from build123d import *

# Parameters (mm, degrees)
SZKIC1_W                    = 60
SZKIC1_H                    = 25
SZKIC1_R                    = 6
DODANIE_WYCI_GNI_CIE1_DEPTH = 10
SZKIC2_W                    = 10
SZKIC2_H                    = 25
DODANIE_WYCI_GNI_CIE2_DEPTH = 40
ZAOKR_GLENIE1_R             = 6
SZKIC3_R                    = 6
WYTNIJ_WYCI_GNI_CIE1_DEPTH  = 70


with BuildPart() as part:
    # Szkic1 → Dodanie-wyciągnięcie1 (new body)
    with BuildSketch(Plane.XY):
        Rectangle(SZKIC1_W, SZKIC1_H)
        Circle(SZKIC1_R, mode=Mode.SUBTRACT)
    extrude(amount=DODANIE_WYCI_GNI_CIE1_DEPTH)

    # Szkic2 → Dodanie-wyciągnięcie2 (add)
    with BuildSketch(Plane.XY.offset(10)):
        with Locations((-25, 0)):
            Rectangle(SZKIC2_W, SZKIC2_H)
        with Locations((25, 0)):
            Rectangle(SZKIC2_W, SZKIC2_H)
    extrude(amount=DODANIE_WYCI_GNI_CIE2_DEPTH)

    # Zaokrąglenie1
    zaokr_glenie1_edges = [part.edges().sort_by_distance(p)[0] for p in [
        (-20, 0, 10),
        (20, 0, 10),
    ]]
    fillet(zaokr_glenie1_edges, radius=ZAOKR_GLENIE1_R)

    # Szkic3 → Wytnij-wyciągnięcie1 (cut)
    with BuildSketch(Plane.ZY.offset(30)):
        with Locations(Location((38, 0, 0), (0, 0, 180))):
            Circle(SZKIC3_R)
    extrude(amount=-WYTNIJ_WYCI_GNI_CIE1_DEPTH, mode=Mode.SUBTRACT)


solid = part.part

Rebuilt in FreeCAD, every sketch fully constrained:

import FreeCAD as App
import Part
import Sketcher


def edges_at(feature, points):
    """Names of the edges that pass closest to the given points."""
    edges = feature.Shape.Edges
    near = lambda p: min(range(len(edges)), key=lambda i: edges[i].distToShape(Part.Vertex(*p))[0])
    return sorted({f"Edge{near(p) + 1}" for p in points})

doc = App.newDocument("Part")
body = doc.addObject("PartDesign::Body", "Body")

# Sketch on XY plane
sketch1 = doc.addObject("Sketcher::SketchObject", "Sketch")
body.addObject(sketch1)
sketch1.AttachmentSupport = (doc.XY_Plane, [""])
sketch1.MapMode = "FlatFace"
sketch1.addGeometry([
    Part.LineSegment(App.Vector(-30, 12.5, 0), App.Vector(-30, -12.5, 0)),  # 0
    Part.LineSegment(App.Vector(-30, -12.5, 0), App.Vector(30, -12.5, 0)),  # 1
    Part.LineSegment(App.Vector(30, -12.5, 0), App.Vector(30, 12.5, 0)),  # 2
    Part.LineSegment(App.Vector(30, 12.5, 0), App.Vector(-30, 12.5, 0)),  # 3
    Part.Circle(App.Vector(0, 0, 0), App.Vector(0, 0, 1), 6),  # 4
], False)
sketch1.addConstraint([
    Sketcher.Constraint("Coincident", 0, 2, 1, 1),
    Sketcher.Constraint("Coincident", 1, 2, 2, 1),
    Sketcher.Constraint("Coincident", 2, 2, 3, 1),
    Sketcher.Constraint("Coincident", 3, 2, 0, 1),
    Sketcher.Constraint("Vertical", 0),
    Sketcher.Constraint("Horizontal", 1),
    Sketcher.Constraint("Vertical", 2),
    Sketcher.Constraint("Horizontal", 3),
    Sketcher.Constraint("Coincident", 4, 3, -1, 1),
    Sketcher.Constraint("Symmetric", 0, 2, 2, 2, -1, 1),
    Sketcher.Constraint("Diameter", 4, 12.0),
    Sketcher.Constraint("DistanceX", 1, 1, 1, 2, 60.0),
    Sketcher.Constraint("DistanceY", 0, 2, 0, 1, 25.0),
])
pad1 = doc.addObject("PartDesign::Pad", "Pad")
body.addObject(pad1)
pad1.Profile = sketch1
pad1.Length = 10

# Sketch on XY plane
sketch2 = doc.addObject("Sketcher::SketchObject", "Sketch001")
body.addObject(sketch2)
sketch2.AttachmentSupport = (doc.XY_Plane, [""])
sketch2.MapMode = "FlatFace"
sketch2.AttachmentOffset = App.Placement(App.Vector(0, 0, 10), App.Rotation())
sketch2.addGeometry([
    Part.LineSegment(App.Vector(-30, 12.5, 0), App.Vector(-30, -12.5, 0)),  # 0
    Part.LineSegment(App.Vector(-30, -12.5, 0), App.Vector(-20, -12.5, 0)),  # 1
    Part.LineSegment(App.Vector(-20, -12.5, 0), App.Vector(-20, 12.5, 0)),  # 2
    Part.LineSegment(App.Vector(-20, 12.5, 0), App.Vector(-30, 12.5, 0)),  # 3
    Part.LineSegment(App.Vector(20, 12.5, 0), App.Vector(20, -12.5, 0)),  # 4
    Part.LineSegment(App.Vector(20, -12.5, 0), App.Vector(30, -12.5, 0)),  # 5
    Part.LineSegment(App.Vector(30, -12.5, 0), App.Vector(30, 12.5, 0)),  # 6
    Part.LineSegment(App.Vector(30, 12.5, 0), App.Vector(20, 12.5, 0)),  # 7
], False)
sketch2.addConstraint([
    Sketcher.Constraint("Coincident", 0, 2, 1, 1),
    Sketcher.Constraint("Coincident", 1, 2, 2, 1),
    Sketcher.Constraint("Coincident", 2, 2, 3, 1),
    Sketcher.Constraint("Coincident", 3, 2, 0, 1),
    Sketcher.Constraint("Coincident", 4, 2, 5, 1),
    Sketcher.Constraint("Coincident", 5, 2, 6, 1),
    Sketcher.Constraint("Coincident", 6, 2, 7, 1),
    Sketcher.Constraint("Coincident", 7, 2, 4, 1),
    Sketcher.Constraint("Vertical", 0),
    Sketcher.Constraint("Horizontal", 1),
    Sketcher.Constraint("Vertical", 2),
    Sketcher.Constraint("Horizontal", 3),
    Sketcher.Constraint("Vertical", 4),
    Sketcher.Constraint("Horizontal", 5),
    Sketcher.Constraint("Vertical", 6),
    Sketcher.Constraint("Horizontal", 7),
    Sketcher.Constraint("Symmetric", 2, 2, 4, 2, -1, 1),
    Sketcher.Constraint("Symmetric", 0, 2, 6, 2, -1, 1),
    Sketcher.Constraint("Horizontal", 1, 2, 4, 2),
    Sketcher.Constraint("DistanceX", 1, 1, 1, 2, 10.0),
    Sketcher.Constraint("DistanceY", 0, 2, 0, 1, 25.0),
    Sketcher.Constraint("DistanceX", 0, 2, -1, 1, 30.0),
])
pad2 = doc.addObject("PartDesign::Pad", "Pad001")
body.addObject(pad2)
pad2.Profile = sketch2
pad2.Length = 40
doc.recompute()

fillet = doc.addObject("PartDesign::Fillet", "Fillet")
body.addObject(fillet)
fillet.Base = (pad2, edges_at(pad2, [(-20, 0, 10), (20, 0, 10)]))
fillet.Radius = 6

# Sketch on YZ plane
sketch3 = doc.addObject("Sketcher::SketchObject", "Sketch002")
body.addObject(sketch3)
sketch3.AttachmentSupport = (doc.YZ_Plane, [""])
sketch3.MapMode = "FlatFace"
sketch3.AttachmentOffset = App.Placement(App.Vector(0, 0, -30), App.Rotation())
sketch3.addGeometry(Part.Circle(App.Vector(0, 38, 0), App.Vector(0, 0, 1), 6), False)
sketch3.addConstraint([
    Sketcher.Constraint("PointOnObject", 0, 3, -2),
    Sketcher.Constraint("Diameter", 0, 12.0),
    Sketcher.Constraint("DistanceY", -1, 1, 0, 3, 38.0),
])
pocket1 = doc.addObject("PartDesign::Pocket", "Pocket")
body.addObject(pocket1)
pocket1.Profile = sketch3
pocket1.Length = 70
pocket1.Reversed = True

doc.recompute()
